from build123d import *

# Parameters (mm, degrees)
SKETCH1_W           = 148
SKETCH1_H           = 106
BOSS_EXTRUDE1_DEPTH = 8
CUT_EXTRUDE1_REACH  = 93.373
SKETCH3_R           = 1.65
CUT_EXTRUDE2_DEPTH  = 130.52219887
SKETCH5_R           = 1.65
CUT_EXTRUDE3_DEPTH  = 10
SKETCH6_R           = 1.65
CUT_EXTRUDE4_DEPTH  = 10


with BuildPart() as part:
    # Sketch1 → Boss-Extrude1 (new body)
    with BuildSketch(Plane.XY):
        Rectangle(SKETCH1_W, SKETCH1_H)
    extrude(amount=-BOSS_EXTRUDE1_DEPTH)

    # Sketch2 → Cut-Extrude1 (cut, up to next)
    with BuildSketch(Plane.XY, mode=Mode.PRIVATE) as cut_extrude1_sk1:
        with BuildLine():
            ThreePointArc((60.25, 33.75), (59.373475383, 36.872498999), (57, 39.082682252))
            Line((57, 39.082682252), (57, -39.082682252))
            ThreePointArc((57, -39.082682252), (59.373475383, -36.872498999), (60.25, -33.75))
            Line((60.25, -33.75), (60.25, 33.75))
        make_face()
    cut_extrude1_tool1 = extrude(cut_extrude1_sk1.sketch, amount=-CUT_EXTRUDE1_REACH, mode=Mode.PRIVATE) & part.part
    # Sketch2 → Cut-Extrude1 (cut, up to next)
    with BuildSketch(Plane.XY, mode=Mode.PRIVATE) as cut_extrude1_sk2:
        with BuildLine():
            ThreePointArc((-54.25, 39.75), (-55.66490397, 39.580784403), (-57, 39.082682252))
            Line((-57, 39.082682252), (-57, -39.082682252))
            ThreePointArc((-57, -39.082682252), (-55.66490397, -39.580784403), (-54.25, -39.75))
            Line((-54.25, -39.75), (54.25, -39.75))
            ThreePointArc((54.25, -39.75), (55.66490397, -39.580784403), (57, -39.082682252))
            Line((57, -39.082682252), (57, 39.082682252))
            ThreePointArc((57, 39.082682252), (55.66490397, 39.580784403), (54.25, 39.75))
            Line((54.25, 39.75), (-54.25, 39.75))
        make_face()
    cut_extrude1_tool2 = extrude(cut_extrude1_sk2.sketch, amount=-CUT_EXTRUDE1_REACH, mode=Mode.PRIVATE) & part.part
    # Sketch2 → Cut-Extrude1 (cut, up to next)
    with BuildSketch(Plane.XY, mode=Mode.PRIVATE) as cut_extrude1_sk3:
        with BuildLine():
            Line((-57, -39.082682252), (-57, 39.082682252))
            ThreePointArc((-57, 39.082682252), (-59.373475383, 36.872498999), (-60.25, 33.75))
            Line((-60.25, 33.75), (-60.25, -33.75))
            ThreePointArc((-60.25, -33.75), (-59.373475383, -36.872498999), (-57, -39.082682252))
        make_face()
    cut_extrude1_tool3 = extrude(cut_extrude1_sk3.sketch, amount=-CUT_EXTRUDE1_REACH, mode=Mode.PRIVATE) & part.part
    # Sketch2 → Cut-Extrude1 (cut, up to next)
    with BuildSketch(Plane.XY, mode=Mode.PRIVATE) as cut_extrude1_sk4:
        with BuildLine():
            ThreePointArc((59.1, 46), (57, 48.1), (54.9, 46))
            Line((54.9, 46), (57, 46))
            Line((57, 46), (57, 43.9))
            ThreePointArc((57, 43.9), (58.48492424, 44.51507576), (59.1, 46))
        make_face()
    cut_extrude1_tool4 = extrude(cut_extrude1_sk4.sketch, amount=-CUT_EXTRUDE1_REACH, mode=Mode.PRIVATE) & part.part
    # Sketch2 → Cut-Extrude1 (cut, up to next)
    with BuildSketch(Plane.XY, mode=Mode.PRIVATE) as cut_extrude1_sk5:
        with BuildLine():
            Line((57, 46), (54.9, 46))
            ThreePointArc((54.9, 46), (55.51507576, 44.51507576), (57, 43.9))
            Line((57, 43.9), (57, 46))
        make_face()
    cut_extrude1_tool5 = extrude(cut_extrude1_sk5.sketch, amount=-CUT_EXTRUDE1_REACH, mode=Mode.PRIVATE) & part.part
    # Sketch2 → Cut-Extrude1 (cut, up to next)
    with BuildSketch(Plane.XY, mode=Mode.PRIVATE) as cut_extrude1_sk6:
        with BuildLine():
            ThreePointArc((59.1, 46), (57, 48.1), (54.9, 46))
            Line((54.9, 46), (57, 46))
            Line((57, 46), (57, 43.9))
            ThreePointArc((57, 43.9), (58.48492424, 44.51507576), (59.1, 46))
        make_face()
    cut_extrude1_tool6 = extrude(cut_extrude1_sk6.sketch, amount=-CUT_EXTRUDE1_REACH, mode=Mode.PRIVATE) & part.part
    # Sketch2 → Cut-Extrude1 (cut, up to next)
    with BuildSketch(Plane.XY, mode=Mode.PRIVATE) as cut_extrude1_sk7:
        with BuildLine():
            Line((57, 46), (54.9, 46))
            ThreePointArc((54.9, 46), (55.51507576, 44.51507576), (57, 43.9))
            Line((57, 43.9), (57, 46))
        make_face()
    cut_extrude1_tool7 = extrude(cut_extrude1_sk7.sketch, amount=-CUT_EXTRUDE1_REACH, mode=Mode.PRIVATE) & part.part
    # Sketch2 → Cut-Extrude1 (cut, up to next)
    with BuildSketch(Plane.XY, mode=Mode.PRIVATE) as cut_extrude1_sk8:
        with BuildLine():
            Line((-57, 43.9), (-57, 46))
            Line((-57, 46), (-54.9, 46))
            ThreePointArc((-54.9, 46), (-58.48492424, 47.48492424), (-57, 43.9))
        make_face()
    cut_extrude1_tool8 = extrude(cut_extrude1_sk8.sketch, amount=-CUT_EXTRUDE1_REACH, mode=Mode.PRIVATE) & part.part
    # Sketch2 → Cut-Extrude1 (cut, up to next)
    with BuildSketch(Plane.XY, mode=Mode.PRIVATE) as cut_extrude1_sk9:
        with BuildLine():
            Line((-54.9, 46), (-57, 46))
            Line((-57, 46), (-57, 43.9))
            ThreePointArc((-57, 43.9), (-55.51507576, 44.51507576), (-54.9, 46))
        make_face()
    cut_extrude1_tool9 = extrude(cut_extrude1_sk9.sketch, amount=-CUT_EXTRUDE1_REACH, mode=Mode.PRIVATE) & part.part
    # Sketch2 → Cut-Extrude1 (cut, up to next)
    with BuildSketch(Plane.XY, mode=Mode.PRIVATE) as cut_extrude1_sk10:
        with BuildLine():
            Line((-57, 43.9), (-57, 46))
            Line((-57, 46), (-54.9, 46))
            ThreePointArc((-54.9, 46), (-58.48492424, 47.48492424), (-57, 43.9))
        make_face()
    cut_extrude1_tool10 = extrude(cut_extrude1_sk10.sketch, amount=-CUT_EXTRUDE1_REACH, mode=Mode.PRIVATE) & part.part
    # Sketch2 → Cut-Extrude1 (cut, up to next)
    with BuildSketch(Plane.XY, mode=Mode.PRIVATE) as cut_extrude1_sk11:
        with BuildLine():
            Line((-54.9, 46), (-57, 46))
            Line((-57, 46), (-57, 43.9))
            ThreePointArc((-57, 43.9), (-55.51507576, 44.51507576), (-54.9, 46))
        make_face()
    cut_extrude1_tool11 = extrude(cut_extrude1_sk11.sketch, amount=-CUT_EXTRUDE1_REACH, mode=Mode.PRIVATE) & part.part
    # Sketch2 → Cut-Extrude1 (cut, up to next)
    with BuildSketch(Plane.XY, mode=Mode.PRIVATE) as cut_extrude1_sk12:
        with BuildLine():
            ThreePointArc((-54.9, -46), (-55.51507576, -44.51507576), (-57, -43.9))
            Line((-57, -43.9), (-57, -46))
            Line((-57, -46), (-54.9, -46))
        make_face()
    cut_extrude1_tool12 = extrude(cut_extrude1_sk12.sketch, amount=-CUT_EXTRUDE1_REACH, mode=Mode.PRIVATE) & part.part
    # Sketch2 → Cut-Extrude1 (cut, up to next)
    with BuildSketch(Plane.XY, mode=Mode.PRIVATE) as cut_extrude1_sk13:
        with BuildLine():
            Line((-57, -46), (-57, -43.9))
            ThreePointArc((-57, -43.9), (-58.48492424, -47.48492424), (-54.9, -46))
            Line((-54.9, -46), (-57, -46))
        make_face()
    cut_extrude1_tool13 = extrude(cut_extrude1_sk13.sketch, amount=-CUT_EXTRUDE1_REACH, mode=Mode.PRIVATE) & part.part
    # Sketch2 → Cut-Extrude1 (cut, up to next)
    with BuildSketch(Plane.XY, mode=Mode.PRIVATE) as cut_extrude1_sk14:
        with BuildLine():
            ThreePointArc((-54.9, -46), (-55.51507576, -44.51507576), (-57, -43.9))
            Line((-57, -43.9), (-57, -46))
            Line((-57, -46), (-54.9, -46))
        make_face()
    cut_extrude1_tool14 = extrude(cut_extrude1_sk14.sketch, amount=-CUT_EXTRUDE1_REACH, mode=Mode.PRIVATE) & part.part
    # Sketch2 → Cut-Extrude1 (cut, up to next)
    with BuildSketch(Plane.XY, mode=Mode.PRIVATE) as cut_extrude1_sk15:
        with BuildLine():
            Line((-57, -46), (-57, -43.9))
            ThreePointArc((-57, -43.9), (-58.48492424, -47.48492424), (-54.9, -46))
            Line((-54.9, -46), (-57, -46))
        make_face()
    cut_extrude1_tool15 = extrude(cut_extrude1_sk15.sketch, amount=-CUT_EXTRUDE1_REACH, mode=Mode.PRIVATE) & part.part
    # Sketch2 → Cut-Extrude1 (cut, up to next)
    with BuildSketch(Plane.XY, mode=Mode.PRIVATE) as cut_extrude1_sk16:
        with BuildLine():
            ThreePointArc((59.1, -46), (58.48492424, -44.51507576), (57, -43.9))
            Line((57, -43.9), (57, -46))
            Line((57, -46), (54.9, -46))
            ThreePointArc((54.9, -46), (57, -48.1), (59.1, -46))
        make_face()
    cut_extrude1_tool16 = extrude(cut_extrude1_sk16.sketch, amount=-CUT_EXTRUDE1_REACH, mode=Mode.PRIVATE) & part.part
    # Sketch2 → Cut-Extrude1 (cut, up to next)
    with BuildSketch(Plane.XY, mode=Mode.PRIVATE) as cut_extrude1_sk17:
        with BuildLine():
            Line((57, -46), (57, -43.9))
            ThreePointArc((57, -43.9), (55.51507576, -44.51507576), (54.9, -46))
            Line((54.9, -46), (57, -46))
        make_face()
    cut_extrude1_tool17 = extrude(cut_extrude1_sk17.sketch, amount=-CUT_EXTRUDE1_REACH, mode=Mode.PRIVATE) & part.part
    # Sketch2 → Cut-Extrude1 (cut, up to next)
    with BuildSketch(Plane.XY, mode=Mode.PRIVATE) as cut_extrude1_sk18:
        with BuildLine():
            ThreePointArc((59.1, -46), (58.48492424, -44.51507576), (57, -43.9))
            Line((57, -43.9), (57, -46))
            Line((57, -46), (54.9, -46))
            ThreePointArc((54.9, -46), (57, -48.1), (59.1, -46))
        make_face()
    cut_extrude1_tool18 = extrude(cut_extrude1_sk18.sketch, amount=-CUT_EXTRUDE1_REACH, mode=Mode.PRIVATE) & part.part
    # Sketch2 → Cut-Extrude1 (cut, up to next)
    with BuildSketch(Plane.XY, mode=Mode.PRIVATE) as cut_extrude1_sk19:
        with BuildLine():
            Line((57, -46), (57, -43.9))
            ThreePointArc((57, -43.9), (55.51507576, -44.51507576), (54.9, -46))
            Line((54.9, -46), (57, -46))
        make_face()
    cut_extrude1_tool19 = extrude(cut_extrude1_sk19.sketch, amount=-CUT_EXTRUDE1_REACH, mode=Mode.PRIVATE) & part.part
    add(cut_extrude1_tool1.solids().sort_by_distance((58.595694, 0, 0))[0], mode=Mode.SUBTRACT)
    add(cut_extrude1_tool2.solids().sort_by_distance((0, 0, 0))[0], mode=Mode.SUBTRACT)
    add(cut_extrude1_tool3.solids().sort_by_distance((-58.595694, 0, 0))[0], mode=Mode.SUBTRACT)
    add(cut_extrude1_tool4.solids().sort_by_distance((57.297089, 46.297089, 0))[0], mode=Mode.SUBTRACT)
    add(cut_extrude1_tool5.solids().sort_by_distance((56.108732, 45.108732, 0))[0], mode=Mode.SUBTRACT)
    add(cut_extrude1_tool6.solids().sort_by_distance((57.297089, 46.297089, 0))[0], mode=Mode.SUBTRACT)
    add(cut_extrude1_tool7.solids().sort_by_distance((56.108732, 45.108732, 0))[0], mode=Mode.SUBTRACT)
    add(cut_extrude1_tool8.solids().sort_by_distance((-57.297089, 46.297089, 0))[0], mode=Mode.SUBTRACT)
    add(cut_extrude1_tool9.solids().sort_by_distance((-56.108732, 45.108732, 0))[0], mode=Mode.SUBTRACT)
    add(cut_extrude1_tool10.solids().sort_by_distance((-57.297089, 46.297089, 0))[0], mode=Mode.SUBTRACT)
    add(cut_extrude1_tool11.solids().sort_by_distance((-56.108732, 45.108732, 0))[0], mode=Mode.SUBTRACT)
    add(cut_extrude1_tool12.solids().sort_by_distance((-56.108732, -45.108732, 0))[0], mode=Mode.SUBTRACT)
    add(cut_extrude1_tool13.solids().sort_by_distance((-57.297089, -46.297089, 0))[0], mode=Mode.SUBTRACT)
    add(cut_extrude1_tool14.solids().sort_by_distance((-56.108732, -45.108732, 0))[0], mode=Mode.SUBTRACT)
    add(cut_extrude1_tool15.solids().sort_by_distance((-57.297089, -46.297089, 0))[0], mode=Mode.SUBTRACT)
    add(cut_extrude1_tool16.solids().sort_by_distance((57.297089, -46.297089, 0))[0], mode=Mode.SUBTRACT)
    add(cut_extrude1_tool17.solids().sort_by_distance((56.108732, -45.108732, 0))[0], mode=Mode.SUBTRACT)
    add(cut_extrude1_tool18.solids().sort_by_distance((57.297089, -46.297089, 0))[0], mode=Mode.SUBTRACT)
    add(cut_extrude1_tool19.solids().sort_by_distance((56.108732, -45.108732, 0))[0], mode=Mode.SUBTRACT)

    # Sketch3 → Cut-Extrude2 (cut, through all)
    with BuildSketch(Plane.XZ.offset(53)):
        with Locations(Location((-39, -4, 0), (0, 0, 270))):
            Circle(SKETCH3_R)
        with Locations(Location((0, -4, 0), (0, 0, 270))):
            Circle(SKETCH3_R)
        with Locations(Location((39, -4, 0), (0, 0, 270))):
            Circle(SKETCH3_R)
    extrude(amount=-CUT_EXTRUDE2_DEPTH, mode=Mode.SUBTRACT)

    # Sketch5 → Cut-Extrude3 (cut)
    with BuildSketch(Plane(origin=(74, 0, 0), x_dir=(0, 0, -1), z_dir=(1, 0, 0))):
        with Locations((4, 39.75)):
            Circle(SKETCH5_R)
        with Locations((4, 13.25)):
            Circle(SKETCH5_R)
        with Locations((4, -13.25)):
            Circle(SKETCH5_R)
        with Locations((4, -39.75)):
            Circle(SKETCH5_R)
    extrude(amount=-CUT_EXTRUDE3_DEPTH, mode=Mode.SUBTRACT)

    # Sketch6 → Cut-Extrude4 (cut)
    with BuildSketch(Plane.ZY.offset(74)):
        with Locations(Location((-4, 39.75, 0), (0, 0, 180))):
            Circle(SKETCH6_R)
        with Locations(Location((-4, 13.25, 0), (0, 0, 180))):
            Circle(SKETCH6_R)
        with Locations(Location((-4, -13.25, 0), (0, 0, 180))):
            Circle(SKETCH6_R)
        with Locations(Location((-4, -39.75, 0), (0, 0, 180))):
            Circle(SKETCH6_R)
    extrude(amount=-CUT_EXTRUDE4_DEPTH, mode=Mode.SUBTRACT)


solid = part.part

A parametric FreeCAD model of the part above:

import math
import FreeCAD as App
import Part
import Sketcher


def add_polygon(sketch, points):
    """Adds a closed chain of lines whose ends are joined by coincident constraints."""
    first, n = sketch.GeometryCount, len(points)
    for a, b in zip(points, points[1:] + points[:1]):
        sketch.addGeometry(Part.LineSegment(App.Vector(*a, 0), App.Vector(*b, 0)), False)
    for i in range(n):
        sketch.addConstraint(Sketcher.Constraint("Coincident", first + i, 2, first + (i + 1) % n, 1))

doc = App.newDocument("Part")
params = doc.addObject("Spreadsheet::Sheet", "Params")
for row, (alias, value) in enumerate([
    ("sketch1_width", "148 mm"),
    ("sketch1_height", "106 mm"),
    ("pad1_length", "8 mm"),
    ("sketch2_radius", "6 mm"),
    ("sketch2_height", "67.5 mm"),
    ("sketch3_radius", "6 mm"),
    ("sketch3_width", "108.5 mm"),
    ("sketch4_radius", "6 mm"),
    ("sketch4_height", "67.5 mm"),
    ("sketch5_radius", "2.1 mm"),
    ("sketch6_radius", "2.1 mm"),
    ("sketch7_radius", "2.1 mm"),
    ("pocket6_length", "8 mm"),
    ("sketch8_radius", "2.1 mm"),
    ("pocket7_length", "8 mm"),
    ("sketch9_radius", "2.1 mm"),
    ("sketch10_radius", "2.1 mm"),
    ("sketch11_radius", "2.1 mm"),
    ("pocket10_length", "8 mm"),
    ("sketch12_radius", "2.1 mm"),
    ("pocket11_length", "8 mm"),
    ("sketch13_radius", "2.1 mm"),
    ("sketch14_radius", "2.1 mm"),
    ("sketch15_radius", "2.1 mm"),
    ("pocket14_length", "8 mm"),
    ("sketch16_radius", "2.1 mm"),
    ("pocket15_length", "8 mm"),
    ("sketch17_radius", "2.1 mm"),
    ("sketch18_radius", "2.1 mm"),
    ("sketch19_radius", "2.1 mm"),
    ("pocket18_length", "8 mm"),
    ("sketch20_radius", "2.1 mm"),
    ("pocket19_length", "8 mm"),
    ("sketch21_diameter", "3.3 mm"),
    ("sketch22_diameter", "3.3 mm"),
    ("pocket21_length", "10 mm"),
    ("sketch23_diameter", "3.3 mm"),
    ("pocket22_length", "10 mm"),
], start=1):
    params.set(f"A{row}", alias)
    params.set(f"B{row}", "=" + value)
    params.setAlias(f"B{row}", alias)

body = doc.addObject("PartDesign::Body", "Body")

sketch1 = body.newObject("Sketcher::SketchObject", "Sketch")
sketch1.AttachmentSupport = (doc.getObject("XY_Plane"), [""])
sketch1.MapMode = "FlatFace"
add_polygon(sketch1, [(-74, 53), (-74, -53), (74, -53), (74, 53)])
sketch1.addConstraint([
    Sketcher.Constraint("Vertical", 0),
    Sketcher.Constraint("Horizontal", 1),
    Sketcher.Constraint("Vertical", 2),
    Sketcher.Constraint("Horizontal", 3),
    Sketcher.Constraint("Symmetric", 0, 2, 2, 2, -1, 1),
    Sketcher.Constraint("DistanceX", 1, 1, 1, 2, 148.0),
    Sketcher.Constraint("DistanceY", 0, 2, 0, 1, 106.0),
])
sketch1.setExpression("Constraints[9]", "Params.sketch1_width")
sketch1.setExpression("Constraints[10]", "Params.sketch1_height")
pad1 = body.newObject("PartDesign::Pad", "Pad")
pad1.Profile = sketch1
pad1.setExpression("Length", "Params.pad1_length")
pad1.Reversed = True

sketch2 = body.newObject("Sketcher::SketchObject", "Sketch001")
sketch2.AttachmentSupport = (doc.getObject("XY_Plane"), [""])
sketch2.MapMode = "FlatFace"
sketch2.addGeometry([
    Part.ArcOfCircle(Part.Circle(App.Vector(54.25, 33.75, 0), App.Vector(0, 0, 1), 6), math.radians(0), math.radians(62.720387)),
    Part.LineSegment(App.Vector(57, 39.082682, 0), App.Vector(57, -39.082682, 0)),
    Part.ArcOfCircle(Part.Circle(App.Vector(54.25, -33.75, 0), App.Vector(0, 0, 1), 6), math.radians(-62.720387), math.radians(0)),
    Part.LineSegment(App.Vector(60.25, -33.75, 0), App.Vector(60.25, 33.75, 0)),
], False)
sketch2.addConstraint([
    Sketcher.Constraint("Coincident", 0, 2, 1, 1),
    Sketcher.Constraint("Coincident", 1, 2, 2, 1),
    Sketcher.Constraint("Tangent", 2, 2, 3, 1),
    Sketcher.Constraint("Tangent", 3, 2, 0, 1),
    Sketcher.Constraint("Vertical", 1),
    Sketcher.Constraint("Vertical", 3),
    Sketcher.Constraint("Equal", 0, 2),
    Sketcher.Constraint("Radius", 0, 6.0),
    Sketcher.Constraint("DistanceY", 3, 1, 3, 2, 67.5),
    Sketcher.Constraint("DistanceX", -1, 1, 0, 2, 57.0),
    Sketcher.Constraint("DistanceX", -1, 1, 0, 3, 54.25),
    Sketcher.Constraint("DistanceY", -1, 1, 0, 3, 33.75),
])
sketch2.setExpression("Constraints[7]", "Params.sketch2_radius")
sketch2.setExpression("Constraints[8]", "Params.sketch2_height")
pocket1 = body.newObject("PartDesign::Pocket", "Pocket")
pocket1.Profile = sketch2
pocket1.Type = "UpToFirst"

sketch3 = body.newObject("Sketcher::SketchObject", "Sketch002")
sketch3.AttachmentSupport = (doc.getObject("XY_Plane"), [""])
sketch3.MapMode = "FlatFace"
sketch3.addGeometry([
    Part.ArcOfCircle(Part.Circle(App.Vector(-54.25, 33.75, 0), App.Vector(0, 0, 1), 6), math.radians(90), math.radians(117.279613)),
    Part.LineSegment(App.Vector(-57, 39.082682, 0), App.Vector(-57, -39.082682, 0)),
    Part.ArcOfCircle(Part.Circle(App.Vector(-54.25, -33.75, 0), App.Vector(0, 0, 1), 6), math.radians(-117.279613), math.radians(-90)),
    Part.LineSegment(App.Vector(-54.25, -39.75, 0), App.Vector(54.25, -39.75, 0)),
    Part.ArcOfCircle(Part.Circle(App.Vector(54.25, -33.75, 0), App.Vector(0, 0, 1), 6), math.radians(-90), math.radians(-62.720387)),
    Part.LineSegment(App.Vector(57, -39.082682, 0), App.Vector(57, 39.082682, 0)),
    Part.ArcOfCircle(Part.Circle(App.Vector(54.25, 33.75, 0), App.Vector(0, 0, 1), 6), math.radians(62.720387), math.radians(90)),
    Part.LineSegment(App.Vector(54.25, 39.75, 0), App.Vector(-54.25, 39.75, 0)),
], False)
sketch3.addConstraint([
    Sketcher.Constraint("Coincident", 0, 2, 1, 1),
    Sketcher.Constraint("Coincident", 1, 2, 2, 1),
    Sketcher.Constraint("Tangent", 2, 2, 3, 1),
    Sketcher.Constraint("Tangent", 3, 2, 4, 1),
    Sketcher.Constraint("Coincident", 4, 2, 5, 1),
    Sketcher.Constraint("Coincident", 5, 2, 6, 1),
    Sketcher.Constraint("Tangent", 6, 2, 7, 1),
    Sketcher.Constraint("Tangent", 7, 2, 0, 1),
    Sketcher.Constraint("Vertical", 1),
    Sketcher.Constraint("Horizontal", 3),
    Sketcher.Constraint("Vertical", 5),
    Sketcher.Constraint("Horizontal", 7),
    Sketcher.Constraint("Equal", 0, 2),
    Sketcher.Constraint("Equal", 2, 4),
    Sketcher.Constraint("Equal", 4, 6),
    Sketcher.Constraint("Symmetric", 0, 3, 4, 3, -1, 1),
    Sketcher.Constraint("Symmetric", 1, 2, 5, 2, -1, 1),
    Sketcher.Constraint("Horizontal", 1, 2, 4, 2),
    Sketcher.Constraint("Radius", 0, 6.0),
    Sketcher.Constraint("DistanceX", 3, 1, 3, 2, 108.5),
    Sketcher.Constraint("DistanceX", 0, 2, -1, 1, 57.0),
    Sketcher.Constraint("DistanceY", 2, 3, 0, 3, 67.5),
])
sketch3.setExpression("Constraints[18]", "Params.sketch3_radius")
sketch3.setExpression("Constraints[19]", "Params.sketch3_width")
pocket2 = body.newObject("PartDesign::Pocket", "Pocket001")
pocket2.Profile = sketch3
pocket2.Type = "UpToFirst"

sketch4 = body.newObject("Sketcher::SketchObject", "Sketch003")
sketch4.AttachmentSupport = (doc.getObject("XY_Plane"), [""])
sketch4.MapMode = "FlatFace"
sketch4.addGeometry([
    Part.LineSegment(App.Vector(-57, -39.082682, 0), App.Vector(-57, 39.082682, 0)),
    Part.ArcOfCircle(Part.Circle(App.Vector(-54.25, 33.75, 0), App.Vector(0, 0, 1), 6), math.radians(117.279613), math.radians(180)),
    Part.LineSegment(App.Vector(-60.25, 33.75, 0), App.Vector(-60.25, -33.75, 0)),
    Part.ArcOfCircle(Part.Circle(App.Vector(-54.25, -33.75, 0), App.Vector(0, 0, 1), 6), math.radians(180), math.radians(242.720387)),
], False)
sketch4.addConstraint([
    Sketcher.Constraint("Coincident", 0, 2, 1, 1),
    Sketcher.Constraint("Tangent", 1, 2, 2, 1),
    Sketcher.Constraint("Tangent", 2, 2, 3, 1),
    Sketcher.Constraint("Coincident", 3, 2, 0, 1),
    Sketcher.Constraint("Vertical", 0),
    Sketcher.Constraint("Vertical", 2),
    Sketcher.Constraint("Equal", 1, 3),
    Sketcher.Constraint("Radius", 1, 6.0),
    Sketcher.Constraint("DistanceY", 2, 2, 2, 1, 67.5),
    Sketcher.Constraint("DistanceX", 0, 2, -1, 1, 57.0),
    Sketcher.Constraint("DistanceX", 1, 3, -1, 1, 54.25),
    Sketcher.Constraint("DistanceY", -1, 1, 1, 3, 33.75),
])
sketch4.setExpression("Constraints[7]", "Params.sketch4_radius")
sketch4.setExpression("Constraints[8]", "Params.sketch4_height")
pocket3 = body.newObject("PartDesign::Pocket", "Pocket002")
pocket3.Profile = sketch4
pocket3.Type = "UpToFirst"

sketch5 = body.newObject("Sketcher::SketchObject", "Sketch004")
sketch5.AttachmentSupport = (doc.getObject("XY_Plane"), [""])
sketch5.MapMode = "FlatFace"
sketch5.addGeometry([
    Part.ArcOfCircle(Part.Circle(App.Vector(57, 46, 0), App.Vector(0, 0, 1), 2.1), math.radians(0), math.radians(180)),
    Part.LineSegment(App.Vector(54.9, 46, 0), App.Vector(57, 46, 0)),
    Part.LineSegment(App.Vector(57, 46, 0), App.Vector(57, 43.9, 0)),
    Part.ArcOfCircle(Part.Circle(App.Vector(57, 46, 0), App.Vector(0, 0, 1), 2.1), math.radians(-90), math.radians(0)),
], False)
sketch5.addConstraint([
    Sketcher.Constraint("Coincident", 0, 2, 1, 1),
    Sketcher.Constraint("Coincident", 1, 2, 2, 1),
    Sketcher.Constraint("Coincident", 2, 2, 3, 1),
    Sketcher.Constraint("Tangent", 3, 2, 0, 1),
    Sketcher.Constraint("Horizontal", 1),
    Sketcher.Constraint("Vertical", 2),
    Sketcher.Constraint("Coincident", 1, 2, 0, 3),
    Sketcher.Constraint("Equal", 0, 3),
    Sketcher.Constraint("Horizontal", 1, 2, 3, 2),
    Sketcher.Constraint("Radius", 0, 2.1),
    Sketcher.Constraint("DistanceX", -1, 1, 0, 3, 57.0),
    Sketcher.Constraint("DistanceY", -1, 1, 0, 3, 46.0),
])
sketch5.setExpression("Constraints[9]", "Params.sketch5_radius")
pocket4 = body.newObject("PartDesign::Pocket", "Pocket003")
pocket4.Profile = sketch5
pocket4.Type = "UpToFirst"

sketch6 = body.newObject("Sketcher::SketchObject", "Sketch005")
sketch6.AttachmentSupport = (doc.getObject("XY_Plane"), [""])
sketch6.MapMode = "FlatFace"
sketch6.addGeometry([
    Part.LineSegment(App.Vector(57, 46, 0), App.Vector(54.9, 46, 0)),
    Part.ArcOfCircle(Part.Circle(App.Vector(57, 46, 0), App.Vector(0, 0, 1), 2.1), math.radians(-180), math.radians(-90)),
    Part.LineSegment(App.Vector(57, 43.9, 0), App.Vector(57, 46, 0)),
], False)
sketch6.addConstraint([
    Sketcher.Constraint("Coincident", 0, 2, 1, 1),
    Sketcher.Constraint("Coincident", 1, 2, 2, 1),
    Sketcher.Constraint("Coincident", 2, 2, 0, 1),
    Sketcher.Constraint("Horizontal", 0),
    Sketcher.Constraint("Vertical", 2),
    Sketcher.Constraint("Coincident", 2, 2, 1, 3),
    Sketcher.Constraint("Radius", 1, 2.1),
    Sketcher.Constraint("DistanceX", -1, 1, 1, 3, 57.0),
    Sketcher.Constraint("DistanceY", -1, 1, 1, 3, 46.0),
])
sketch6.setExpression("Constraints[6]", "Params.sketch6_radius")
pocket5 = body.newObject("PartDesign::Pocket", "Pocket004")
pocket5.Profile = sketch6
pocket5.Type = "UpToFirst"

sketch7 = body.newObject("Sketcher::SketchObject", "Sketch006")
sketch7.AttachmentSupport = (doc.getObject("XY_Plane"), [""])
sketch7.MapMode = "FlatFace"
sketch7.addGeometry([
    Part.ArcOfCircle(Part.Circle(App.Vector(57, 46, 0), App.Vector(0, 0, 1), 2.1), math.radians(0), math.radians(180)),
    Part.LineSegment(App.Vector(54.9, 46, 0), App.Vector(57, 46, 0)),
    Part.LineSegment(App.Vector(57, 46, 0), App.Vector(57, 43.9, 0)),
    Part.ArcOfCircle(Part.Circle(App.Vector(57, 46, 0), App.Vector(0, 0, 1), 2.1), math.radians(-90), math.radians(0)),
], False)
sketch7.addConstraint([
    Sketcher.Constraint("Coincident", 0, 2, 1, 1),
    Sketcher.Constraint("Coincident", 1, 2, 2, 1),
    Sketcher.Constraint("Coincident", 2, 2, 3, 1),
    Sketcher.Constraint("Tangent", 3, 2, 0, 1),
    Sketcher.Constraint("Horizontal", 1),
    Sketcher.Constraint("Vertical", 2),
    Sketcher.Constraint("Coincident", 1, 2, 0, 3),
    Sketcher.Constraint("Equal", 0, 3),
    Sketcher.Constraint("Horizontal", 1, 2, 3, 2),
    Sketcher.Constraint("Radius", 0, 2.1),
    Sketcher.Constraint("DistanceX", -1, 1, 0, 3, 57.0),
    Sketcher.Constraint("DistanceY", -1, 1, 0, 3, 46.0),
])
sketch7.setExpression("Constraints[9]", "Params.sketch7_radius")
pocket6 = body.newObject("PartDesign::Pocket", "Pocket005")
pocket6.Profile = sketch7
pocket6.setExpression("Length", "Params.pocket6_length")

sketch8 = body.newObject("Sketcher::SketchObject", "Sketch007")
sketch8.AttachmentSupport = (doc.getObject("XY_Plane"), [""])
sketch8.MapMode = "FlatFace"
sketch8.addGeometry([
    Part.LineSegment(App.Vector(57, 46, 0), App.Vector(54.9, 46, 0)),
    Part.ArcOfCircle(Part.Circle(App.Vector(57, 46, 0), App.Vector(0, 0, 1), 2.1), math.radians(-180), math.radians(-90)),
    Part.LineSegment(App.Vector(57, 43.9, 0), App.Vector(57, 46, 0)),
], False)
sketch8.addConstraint([
    Sketcher.Constraint("Coincident", 0, 2, 1, 1),
    Sketcher.Constraint("Coincident", 1, 2, 2, 1),
    Sketcher.Constraint("Coincident", 2, 2, 0, 1),
    Sketcher.Constraint("Horizontal", 0),
    Sketcher.Constraint("Vertical", 2),
    Sketcher.Constraint("Coincident", 2, 2, 1, 3),
    Sketcher.Constraint("Radius", 1, 2.1),
    Sketcher.Constraint("DistanceX", -1, 1, 1, 3, 57.0),
    Sketcher.Constraint("DistanceY", -1, 1, 1, 3, 46.0),
])
sketch8.setExpression("Constraints[6]", "Params.sketch8_radius")
pocket7 = body.newObject("PartDesign::Pocket", "Pocket006")
pocket7.Profile = sketch8
pocket7.setExpression("Length", "Params.pocket7_length")

sketch9 = body.newObject("Sketcher::SketchObject", "Sketch008")
sketch9.AttachmentSupport = (doc.getObject("XY_Plane"), [""])
sketch9.MapMode = "FlatFace"
sketch9.addGeometry([
    Part.LineSegment(App.Vector(-57, 43.9, 0), App.Vector(-57, 46, 0)),
    Part.LineSegment(App.Vector(-57, 46, 0), App.Vector(-54.9, 46, 0)),
    Part.ArcOfCircle(Part.Circle(App.Vector(-57, 46, 0), App.Vector(0, 0, 1), 2.1), math.radians(0), math.radians(270)),
], False)
sketch9.addConstraint([
    Sketcher.Constraint("Coincident", 0, 2, 1, 1),
    Sketcher.Constraint("Coincident", 1, 2, 2, 1),
    Sketcher.Constraint("Coincident", 2, 2, 0, 1),
    Sketcher.Constraint("Vertical", 0),
    Sketcher.Constraint("Horizontal", 1),
    Sketcher.Constraint("Coincident", 0, 2, 2, 3),
    Sketcher.Constraint("Radius", 2, 2.1),
    Sketcher.Constraint("DistanceX", 2, 3, -1, 1, 57.0),
    Sketcher.Constraint("DistanceY", -1, 1, 2, 3, 46.0),
])
sketch9.setExpression("Constraints[6]", "Params.sketch9_radius")
pocket8 = body.newObject("PartDesign::Pocket", "Pocket007")
pocket8.Profile = sketch9
pocket8.Type = "UpToFirst"

sketch10 = body.newObject("Sketcher::SketchObject", "Sketch009")
sketch10.AttachmentSupport = (doc.getObject("XY_Plane"), [""])
sketch10.MapMode = "FlatFace"
sketch10.addGeometry([
    Part.LineSegment(App.Vector(-54.9, 46, 0), App.Vector(-57, 46, 0)),
    Part.LineSegment(App.Vector(-57, 46, 0), App.Vector(-57, 43.9, 0)),
    Part.ArcOfCircle(Part.Circle(App.Vector(-57, 46, 0), App.Vector(0, 0, 1), 2.1), math.radians(-90), math.radians(0)),
], False)
sketch10.addConstraint([
    Sketcher.Constraint("Coincident", 0, 2, 1, 1),
    Sketcher.Constraint("Coincident", 1, 2, 2, 1),
    Sketcher.Constraint("Coincident", 2, 2, 0, 1),
    Sketcher.Constraint("Horizontal", 0),
    Sketcher.Constraint("Vertical", 1),
    Sketcher.Constraint("Coincident", 0, 2, 2, 3),
    Sketcher.Constraint("Radius", 2, 2.1),
    Sketcher.Constraint("DistanceX", 2, 3, -1, 1, 57.0),
    Sketcher.Constraint("DistanceY", -1, 1, 2, 3, 46.0),
])
sketch10.setExpression("Constraints[6]", "Params.sketch10_radius")
pocket9 = body.newObject("PartDesign::Pocket", "Pocket008")
pocket9.Profile = sketch10
pocket9.Type = "UpToFirst"

sketch11 = body.newObject("Sketcher::SketchObject", "Sketch010")
sketch11.AttachmentSupport = (doc.getObject("XY_Plane"), [""])
sketch11.MapMode = "FlatFace"
sketch11.addGeometry([
    Part.LineSegment(App.Vector(-57, 43.9, 0), App.Vector(-57, 46, 0)),
    Part.LineSegment(App.Vector(-57, 46, 0), App.Vector(-54.9, 46, 0)),
    Part.ArcOfCircle(Part.Circle(App.Vector(-57, 46, 0), App.Vector(0, 0, 1), 2.1), math.radians(0), math.radians(270)),
], False)
sketch11.addConstraint([
    Sketcher.Constraint("Coincident", 0, 2, 1, 1),
    Sketcher.Constraint("Coincident", 1, 2, 2, 1),
    Sketcher.Constraint("Coincident", 2, 2, 0, 1),
    Sketcher.Constraint("Vertical", 0),
    Sketcher.Constraint("Horizontal", 1),
    Sketcher.Constraint("Coincident", 0, 2, 2, 3),
    Sketcher.Constraint("Radius", 2, 2.1),
    Sketcher.Constraint("DistanceX", 2, 3, -1, 1, 57.0),
    Sketcher.Constraint("DistanceY", -1, 1, 2, 3, 46.0),
])
sketch11.setExpression("Constraints[6]", "Params.sketch11_radius")
pocket10 = body.newObject("PartDesign::Pocket", "Pocket009")
pocket10.Profile = sketch11
pocket10.setExpression("Length", "Params.pocket10_length")

sketch12 = body.newObject("Sketcher::SketchObject", "Sketch011")
sketch12.AttachmentSupport = (doc.getObject("XY_Plane"), [""])
sketch12.MapMode = "FlatFace"
sketch12.addGeometry([
    Part.LineSegment(App.Vector(-54.9, 46, 0), App.Vector(-57, 46, 0)),
    Part.LineSegment(App.Vector(-57, 46, 0), App.Vector(-57, 43.9, 0)),
    Part.ArcOfCircle(Part.Circle(App.Vector(-57, 46, 0), App.Vector(0, 0, 1), 2.1), math.radians(-90), math.radians(0)),
], False)
sketch12.addConstraint([
    Sketcher.Constraint("Coincident", 0, 2, 1, 1),
    Sketcher.Constraint("Coincident", 1, 2, 2, 1),
    Sketcher.Constraint("Coincident", 2, 2, 0, 1),
    Sketcher.Constraint("Horizontal", 0),
    Sketcher.Constraint("Vertical", 1),
    Sketcher.Constraint("Coincident", 0, 2, 2, 3),
    Sketcher.Constraint("Radius", 2, 2.1),
    Sketcher.Constraint("DistanceX", 2, 3, -1, 1, 57.0),
    Sketcher.Constraint("DistanceY", -1, 1, 2, 3, 46.0),
])
sketch12.setExpression("Constraints[6]", "Params.sketch12_radius")
pocket11 = body.newObject("PartDesign::Pocket", "Pocket010")
pocket11.Profile = sketch12
pocket11.setExpression("Length", "Params.pocket11_length")

sketch13 = body.newObject("Sketcher::SketchObject", "Sketch012")
sketch13.AttachmentSupport = (doc.getObject("XY_Plane"), [""])
sketch13.MapMode = "FlatFace"
sketch13.addGeometry([
    Part.ArcOfCircle(Part.Circle(App.Vector(-57, -46, 0), App.Vector(0, 0, 1), 2.1), math.radians(0), math.radians(90)),
    Part.LineSegment(App.Vector(-57, -43.9, 0), App.Vector(-57, -46, 0)),
    Part.LineSegment(App.Vector(-57, -46, 0), App.Vector(-54.9, -46, 0)),
], False)
sketch13.addConstraint([
    Sketcher.Constraint("Coincident", 0, 2, 1, 1),
    Sketcher.Constraint("Coincident", 1, 2, 2, 1),
    Sketcher.Constraint("Coincident", 2, 2, 0, 1),
    Sketcher.Constraint("Vertical", 1),
    Sketcher.Constraint("Horizontal", 2),
    Sketcher.Constraint("Coincident", 1, 2, 0, 3),
    Sketcher.Constraint("Radius", 0, 2.1),
    Sketcher.Constraint("DistanceX", 0, 3, -1, 1, 57.0),
    Sketcher.Constraint("DistanceY", 0, 3, -1, 1, 46.0),
])
sketch13.setExpression("Constraints[6]", "Params.sketch13_radius")
pocket12 = body.newObject("PartDesign::Pocket", "Pocket011")
pocket12.Profile = sketch13
pocket12.Type = "UpToFirst"

sketch14 = body.newObject("Sketcher::SketchObject", "Sketch013")
sketch14.AttachmentSupport = (doc.getObject("XY_Plane"), [""])
sketch14.MapMode = "FlatFace"
sketch14.addGeometry([
    Part.LineSegment(App.Vector(-57, -46, 0), App.Vector(-57, -43.9, 0)),
    Part.ArcOfCircle(Part.Circle(App.Vector(-57, -46, 0), App.Vector(0, 0, 1), 2.1), math.radians(90), math.radians(360)),
    Part.LineSegment(App.Vector(-54.9, -46, 0), App.Vector(-57, -46, 0)),
], False)
sketch14.addConstraint([
    Sketcher.Constraint("Coincident", 0, 2, 1, 1),
    Sketcher.Constraint("Coincident", 1, 2, 2, 1),
    Sketcher.Constraint("Coincident", 2, 2, 0, 1),
    Sketcher.Constraint("Vertical", 0),
    Sketcher.Constraint("Horizontal", 2),
    Sketcher.Constraint("Coincident", 2, 2, 1, 3),
    Sketcher.Constraint("Radius", 1, 2.1),
    Sketcher.Constraint("DistanceX", 1, 3, -1, 1, 57.0),
    Sketcher.Constraint("DistanceY", 1, 3, -1, 1, 46.0),
])
sketch14.setExpression("Constraints[6]", "Params.sketch14_radius")
pocket13 = body.newObject("PartDesign::Pocket", "Pocket012")
pocket13.Profile = sketch14
pocket13.Type = "UpToFirst"

sketch15 = body.newObject("Sketcher::SketchObject", "Sketch014")
sketch15.AttachmentSupport = (doc.getObject("XY_Plane"), [""])
sketch15.MapMode = "FlatFace"
sketch15.addGeometry([
    Part.ArcOfCircle(Part.Circle(App.Vector(-57, -46, 0), App.Vector(0, 0, 1), 2.1), math.radians(0), math.radians(90)),
    Part.LineSegment(App.Vector(-57, -43.9, 0), App.Vector(-57, -46, 0)),
    Part.LineSegment(App.Vector(-57, -46, 0), App.Vector(-54.9, -46, 0)),
], False)
sketch15.addConstraint([
    Sketcher.Constraint("Coincident", 0, 2, 1, 1),
    Sketcher.Constraint("Coincident", 1, 2, 2, 1),
    Sketcher.Constraint("Coincident", 2, 2, 0, 1),
    Sketcher.Constraint("Vertical", 1),
    Sketcher.Constraint("Horizontal", 2),
    Sketcher.Constraint("Coincident", 1, 2, 0, 3),
    Sketcher.Constraint("Radius", 0, 2.1),
    Sketcher.Constraint("DistanceX", 0, 3, -1, 1, 57.0),
    Sketcher.Constraint("DistanceY", 0, 3, -1, 1, 46.0),
])
sketch15.setExpression("Constraints[6]", "Params.sketch15_radius")
pocket14 = body.newObject("PartDesign::Pocket", "Pocket013")
pocket14.Profile = sketch15
pocket14.setExpression("Length", "Params.pocket14_length")

sketch16 = body.newObject("Sketcher::SketchObject", "Sketch015")
sketch16.AttachmentSupport = (doc.getObject("XY_Plane"), [""])
sketch16.MapMode = "FlatFace"
sketch16.addGeometry([
    Part.LineSegment(App.Vector(-57, -46, 0), App.Vector(-57, -43.9, 0)),
    Part.ArcOfCircle(Part.Circle(App.Vector(-57, -46, 0), App.Vector(0, 0, 1), 2.1), math.radians(90), math.radians(360)),
    Part.LineSegment(App.Vector(-54.9, -46, 0), App.Vector(-57, -46, 0)),
], False)
sketch16.addConstraint([
    Sketcher.Constraint("Coincident", 0, 2, 1, 1),
    Sketcher.Constraint("Coincident", 1, 2, 2, 1),
    Sketcher.Constraint("Coincident", 2, 2, 0, 1),
    Sketcher.Constraint("Vertical", 0),
    Sketcher.Constraint("Horizontal", 2),
    Sketcher.Constraint("Coincident", 2, 2, 1, 3),
    Sketcher.Constraint("Radius", 1, 2.1),
    Sketcher.Constraint("DistanceX", 1, 3, -1, 1, 57.0),
    Sketcher.Constraint("DistanceY", 1, 3, -1, 1, 46.0),
])
sketch16.setExpression("Constraints[6]", "Params.sketch16_radius")
pocket15 = body.newObject("PartDesign::Pocket", "Pocket014")
pocket15.Profile = sketch16
pocket15.setExpression("Length", "Params.pocket15_length")

sketch17 = body.newObject("Sketcher::SketchObject", "Sketch016")
sketch17.AttachmentSupport = (doc.getObject("XY_Plane"), [""])
sketch17.MapMode = "FlatFace"
sketch17.addGeometry([
    Part.ArcOfCircle(Part.Circle(App.Vector(57, -46, 0), App.Vector(0, 0, 1), 2.1), math.radians(0), math.radians(90)),
    Part.LineSegment(App.Vector(57, -43.9, 0), App.Vector(57, -46, 0)),
    Part.LineSegment(App.Vector(57, -46, 0), App.Vector(54.9, -46, 0)),
    Part.ArcOfCircle(Part.Circle(App.Vector(57, -46, 0), App.Vector(0, 0, 1), 2.1), math.radians(180), math.radians(360)),
], False)
sketch17.addConstraint([
    Sketcher.Constraint("Coincident", 0, 2, 1, 1),
    Sketcher.Constraint("Coincident", 1, 2, 2, 1),
    Sketcher.Constraint("Coincident", 2, 2, 3, 1),
    Sketcher.Constraint("Tangent", 3, 2, 0, 1),
    Sketcher.Constraint("Vertical", 1),
    Sketcher.Constraint("Horizontal", 2),
    Sketcher.Constraint("Coincident", 1, 2, 0, 3),
    Sketcher.Constraint("Equal", 0, 3),
    Sketcher.Constraint("Horizontal", 2, 2, 3, 2),
    Sketcher.Constraint("Radius", 0, 2.1),
    Sketcher.Constraint("DistanceX", -1, 1, 0, 3, 57.0),
    Sketcher.Constraint("DistanceY", 0, 3, -1, 1, 46.0),
])
sketch17.setExpression("Constraints[9]", "Params.sketch17_radius")
pocket16 = body.newObject("PartDesign::Pocket", "Pocket015")
pocket16.Profile = sketch17
pocket16.Type = "UpToFirst"

sketch18 = body.newObject("Sketcher::SketchObject", "Sketch017")
sketch18.AttachmentSupport = (doc.getObject("XY_Plane"), [""])
sketch18.MapMode = "FlatFace"
sketch18.addGeometry([
    Part.LineSegment(App.Vector(57, -46, 0), App.Vector(57, -43.9, 0)),
    Part.ArcOfCircle(Part.Circle(App.Vector(57, -46, 0), App.Vector(0, 0, 1), 2.1), math.radians(90), math.radians(180)),
    Part.LineSegment(App.Vector(54.9, -46, 0), App.Vector(57, -46, 0)),
], False)
sketch18.addConstraint([
    Sketcher.Constraint("Coincident", 0, 2, 1, 1),
    Sketcher.Constraint("Coincident", 1, 2, 2, 1),
    Sketcher.Constraint("Coincident", 2, 2, 0, 1),
    Sketcher.Constraint("Vertical", 0),
    Sketcher.Constraint("Horizontal", 2),
    Sketcher.Constraint("Coincident", 2, 2, 1, 3),
    Sketcher.Constraint("Radius", 1, 2.1),
    Sketcher.Constraint("DistanceX", -1, 1, 1, 3, 57.0),
    Sketcher.Constraint("DistanceY", 1, 3, -1, 1, 46.0),
])
sketch18.setExpression("Constraints[6]", "Params.sketch18_radius")
pocket17 = body.newObject("PartDesign::Pocket", "Pocket016")
pocket17.Profile = sketch18
pocket17.Type = "UpToFirst"

sketch19 = body.newObject("Sketcher::SketchObject", "Sketch018")
sketch19.AttachmentSupport = (doc.getObject("XY_Plane"), [""])
sketch19.MapMode = "FlatFace"
sketch19.addGeometry([
    Part.ArcOfCircle(Part.Circle(App.Vector(57, -46, 0), App.Vector(0, 0, 1), 2.1), math.radians(0), math.radians(90)),
    Part.LineSegment(App.Vector(57, -43.9, 0), App.Vector(57, -46, 0)),
    Part.LineSegment(App.Vector(57, -46, 0), App.Vector(54.9, -46, 0)),
    Part.ArcOfCircle(Part.Circle(App.Vector(57, -46, 0), App.Vector(0, 0, 1), 2.1), math.radians(180), math.radians(360)),
], False)
sketch19.addConstraint([
    Sketcher.Constraint("Coincident", 0, 2, 1, 1),
    Sketcher.Constraint("Coincident", 1, 2, 2, 1),
    Sketcher.Constraint("Coincident", 2, 2, 3, 1),
    Sketcher.Constraint("Tangent", 3, 2, 0, 1),
    Sketcher.Constraint("Vertical", 1),
    Sketcher.Constraint("Horizontal", 2),
    Sketcher.Constraint("Coincident", 1, 2, 0, 3),
    Sketcher.Constraint("Equal", 0, 3),
    Sketcher.Constraint("Horizontal", 2, 2, 3, 2),
    Sketcher.Constraint("Radius", 0, 2.1),
    Sketcher.Constraint("DistanceX", -1, 1, 0, 3, 57.0),
    Sketcher.Constraint("DistanceY", 0, 3, -1, 1, 46.0),
])
sketch19.setExpression("Constraints[9]", "Params.sketch19_radius")
pocket18 = body.newObject("PartDesign::Pocket", "Pocket017")
pocket18.Profile = sketch19
pocket18.setExpression("Length", "Params.pocket18_length")

sketch20 = body.newObject("Sketcher::SketchObject", "Sketch019")
sketch20.AttachmentSupport = (doc.getObject("XY_Plane"), [""])
sketch20.MapMode = "FlatFace"
sketch20.addGeometry([
    Part.LineSegment(App.Vector(57, -46, 0), App.Vector(57, -43.9, 0)),
    Part.ArcOfCircle(Part.Circle(App.Vector(57, -46, 0), App.Vector(0, 0, 1), 2.1), math.radians(90), math.radians(180)),
    Part.LineSegment(App.Vector(54.9, -46, 0), App.Vector(57, -46, 0)),
], False)
sketch20.addConstraint([
    Sketcher.Constraint("Coincident", 0, 2, 1, 1),
    Sketcher.Constraint("Coincident", 1, 2, 2, 1),
    Sketcher.Constraint("Coincident", 2, 2, 0, 1),
    Sketcher.Constraint("Vertical", 0),
    Sketcher.Constraint("Horizontal", 2),
    Sketcher.Constraint("Coincident", 2, 2, 1, 3),
    Sketcher.Constraint("Radius", 1, 2.1),
    Sketcher.Constraint("DistanceX", -1, 1, 1, 3, 57.0),
    Sketcher.Constraint("DistanceY", 1, 3, -1, 1, 46.0),
])
sketch20.setExpression("Constraints[6]", "Params.sketch20_radius")
pocket19 = body.newObject("PartDesign::Pocket", "Pocket018")
pocket19.Profile = sketch20
pocket19.setExpression("Length", "Params.pocket19_length")

sketch21 = body.newObject("Sketcher::SketchObject", "Sketch020")
sketch21.AttachmentSupport = (doc.getObject("XZ_Plane"), [""])
sketch21.MapMode = "FlatFace"
sketch21.AttachmentOffset = App.Placement(App.Vector(0, 0, 53), App.Rotation())
sketch21.addGeometry([
    Part.Circle(App.Vector(-39, -4, 0), App.Vector(0, 0, 1), 1.65),
    Part.Circle(App.Vector(0, -4, 0), App.Vector(0, 0, 1), 1.65),
    Part.Circle(App.Vector(39, -4, 0), App.Vector(0, 0, 1), 1.65),
], False)
sketch21.addConstraint([
    Sketcher.Constraint("Equal", 0, 1),
    Sketcher.Constraint("Equal", 1, 2),
    Sketcher.Constraint("Symmetric", 0, 3, 2, 3, -2),
    Sketcher.Constraint("PointOnObject", 1, 3, -2),
    Sketcher.Constraint("Horizontal", 0, 3, 1, 3),
    Sketcher.Constraint("Diameter", 0, 3.3),
    Sketcher.Constraint("DistanceX", 0, 3, -1, 1, 39.0),
    Sketcher.Constraint("DistanceY", 0, 3, -1, 1, 4.0),
])
sketch21.setExpression("Constraints[5]", "Params.sketch21_diameter")
pocket20 = body.newObject("PartDesign::Pocket", "Pocket019")
pocket20.Profile = sketch21
pocket20.Type = "ThroughAll"

sketch22 = body.newObject("Sketcher::SketchObject", "Sketch021")
sketch22.AttachmentSupport = (doc.getObject("YZ_Plane"), [""])
sketch22.MapMode = "FlatFace"
sketch22.AttachmentOffset = App.Placement(App.Vector(0, 0, 74), App.Rotation())
sketch22.addGeometry([
    Part.Circle(App.Vector(39.75, -4, 0), App.Vector(0, 0, 1), 1.65),
    Part.Circle(App.Vector(13.25, -4, 0), App.Vector(0, 0, 1), 1.65),
    Part.Circle(App.Vector(-13.25, -4, 0), App.Vector(0, 0, 1), 1.65),
    Part.Circle(App.Vector(-39.75, -4, 0), App.Vector(0, 0, 1), 1.65),
], False)
sketch22.addConstraint([
    Sketcher.Constraint("Equal", 0, 1),
    Sketcher.Constraint("Equal", 1, 2),
    Sketcher.Constraint("Equal", 2, 3),
    Sketcher.Constraint("Symmetric", 1, 3, 2, 3, -2),
    Sketcher.Constraint("Symmetric", 0, 3, 3, 3, -2),
    Sketcher.Constraint("Horizontal", 0, 3, 1, 3),
    Sketcher.Constraint("Diameter", 0, 3.3),
    Sketcher.Constraint("DistanceY", 0, 3, -1, 1, 4.0),
    Sketcher.Constraint("DistanceX", 2, 3, 0, 3, 53.0),
    Sketcher.Constraint("DistanceX", 1, 3, 0, 3, 26.5),
])
sketch22.setExpression("Constraints[6]", "Params.sketch22_diameter")
pocket21 = body.newObject("PartDesign::Pocket", "Pocket020")
pocket21.Profile = sketch22
pocket21.setExpression("Length", "Params.pocket21_length")

sketch23 = body.newObject("Sketcher::SketchObject", "Sketch022")
sketch23.AttachmentSupport = (doc.getObject("YZ_Plane"), [""])
sketch23.MapMode = "FlatFace"
sketch23.AttachmentOffset = App.Placement(App.Vector(0, 0, -74), App.Rotation())
sketch23.addGeometry([
    Part.Circle(App.Vector(39.75, -4, 0), App.Vector(0, 0, 1), 1.65),
    Part.Circle(App.Vector(13.25, -4, 0), App.Vector(0, 0, 1), 1.65),
    Part.Circle(App.Vector(-13.25, -4, 0), App.Vector(0, 0, 1), 1.65),
    Part.Circle(App.Vector(-39.75, -4, 0), App.Vector(0, 0, 1), 1.65),
], False)
sketch23.addConstraint([
    Sketcher.Constraint("Equal", 0, 1),
    Sketcher.Constraint("Equal", 1, 2),
    Sketcher.Constraint("Equal", 2, 3),
    Sketcher.Constraint("Symmetric", 1, 3, 2, 3, -2),
    Sketcher.Constraint("Symmetric", 0, 3, 3, 3, -2),
    Sketcher.Constraint("Horizontal", 0, 3, 1, 3),
    Sketcher.Constraint("Diameter", 0, 3.3),
    Sketcher.Constraint("DistanceY", 0, 3, -1, 1, 4.0),
    Sketcher.Constraint("DistanceX", 2, 3, 0, 3, 53.0),
    Sketcher.Constraint("DistanceX", 1, 3, 0, 3, 26.5),
])
sketch23.setExpression("Constraints[6]", "Params.sketch23_diameter")
pocket22 = body.newObject("PartDesign::Pocket", "Pocket021")
pocket22.Profile = sketch23
pocket22.setExpression("Length", "Params.pocket22_length")
pocket22.Reversed = True

doc.recompute()
